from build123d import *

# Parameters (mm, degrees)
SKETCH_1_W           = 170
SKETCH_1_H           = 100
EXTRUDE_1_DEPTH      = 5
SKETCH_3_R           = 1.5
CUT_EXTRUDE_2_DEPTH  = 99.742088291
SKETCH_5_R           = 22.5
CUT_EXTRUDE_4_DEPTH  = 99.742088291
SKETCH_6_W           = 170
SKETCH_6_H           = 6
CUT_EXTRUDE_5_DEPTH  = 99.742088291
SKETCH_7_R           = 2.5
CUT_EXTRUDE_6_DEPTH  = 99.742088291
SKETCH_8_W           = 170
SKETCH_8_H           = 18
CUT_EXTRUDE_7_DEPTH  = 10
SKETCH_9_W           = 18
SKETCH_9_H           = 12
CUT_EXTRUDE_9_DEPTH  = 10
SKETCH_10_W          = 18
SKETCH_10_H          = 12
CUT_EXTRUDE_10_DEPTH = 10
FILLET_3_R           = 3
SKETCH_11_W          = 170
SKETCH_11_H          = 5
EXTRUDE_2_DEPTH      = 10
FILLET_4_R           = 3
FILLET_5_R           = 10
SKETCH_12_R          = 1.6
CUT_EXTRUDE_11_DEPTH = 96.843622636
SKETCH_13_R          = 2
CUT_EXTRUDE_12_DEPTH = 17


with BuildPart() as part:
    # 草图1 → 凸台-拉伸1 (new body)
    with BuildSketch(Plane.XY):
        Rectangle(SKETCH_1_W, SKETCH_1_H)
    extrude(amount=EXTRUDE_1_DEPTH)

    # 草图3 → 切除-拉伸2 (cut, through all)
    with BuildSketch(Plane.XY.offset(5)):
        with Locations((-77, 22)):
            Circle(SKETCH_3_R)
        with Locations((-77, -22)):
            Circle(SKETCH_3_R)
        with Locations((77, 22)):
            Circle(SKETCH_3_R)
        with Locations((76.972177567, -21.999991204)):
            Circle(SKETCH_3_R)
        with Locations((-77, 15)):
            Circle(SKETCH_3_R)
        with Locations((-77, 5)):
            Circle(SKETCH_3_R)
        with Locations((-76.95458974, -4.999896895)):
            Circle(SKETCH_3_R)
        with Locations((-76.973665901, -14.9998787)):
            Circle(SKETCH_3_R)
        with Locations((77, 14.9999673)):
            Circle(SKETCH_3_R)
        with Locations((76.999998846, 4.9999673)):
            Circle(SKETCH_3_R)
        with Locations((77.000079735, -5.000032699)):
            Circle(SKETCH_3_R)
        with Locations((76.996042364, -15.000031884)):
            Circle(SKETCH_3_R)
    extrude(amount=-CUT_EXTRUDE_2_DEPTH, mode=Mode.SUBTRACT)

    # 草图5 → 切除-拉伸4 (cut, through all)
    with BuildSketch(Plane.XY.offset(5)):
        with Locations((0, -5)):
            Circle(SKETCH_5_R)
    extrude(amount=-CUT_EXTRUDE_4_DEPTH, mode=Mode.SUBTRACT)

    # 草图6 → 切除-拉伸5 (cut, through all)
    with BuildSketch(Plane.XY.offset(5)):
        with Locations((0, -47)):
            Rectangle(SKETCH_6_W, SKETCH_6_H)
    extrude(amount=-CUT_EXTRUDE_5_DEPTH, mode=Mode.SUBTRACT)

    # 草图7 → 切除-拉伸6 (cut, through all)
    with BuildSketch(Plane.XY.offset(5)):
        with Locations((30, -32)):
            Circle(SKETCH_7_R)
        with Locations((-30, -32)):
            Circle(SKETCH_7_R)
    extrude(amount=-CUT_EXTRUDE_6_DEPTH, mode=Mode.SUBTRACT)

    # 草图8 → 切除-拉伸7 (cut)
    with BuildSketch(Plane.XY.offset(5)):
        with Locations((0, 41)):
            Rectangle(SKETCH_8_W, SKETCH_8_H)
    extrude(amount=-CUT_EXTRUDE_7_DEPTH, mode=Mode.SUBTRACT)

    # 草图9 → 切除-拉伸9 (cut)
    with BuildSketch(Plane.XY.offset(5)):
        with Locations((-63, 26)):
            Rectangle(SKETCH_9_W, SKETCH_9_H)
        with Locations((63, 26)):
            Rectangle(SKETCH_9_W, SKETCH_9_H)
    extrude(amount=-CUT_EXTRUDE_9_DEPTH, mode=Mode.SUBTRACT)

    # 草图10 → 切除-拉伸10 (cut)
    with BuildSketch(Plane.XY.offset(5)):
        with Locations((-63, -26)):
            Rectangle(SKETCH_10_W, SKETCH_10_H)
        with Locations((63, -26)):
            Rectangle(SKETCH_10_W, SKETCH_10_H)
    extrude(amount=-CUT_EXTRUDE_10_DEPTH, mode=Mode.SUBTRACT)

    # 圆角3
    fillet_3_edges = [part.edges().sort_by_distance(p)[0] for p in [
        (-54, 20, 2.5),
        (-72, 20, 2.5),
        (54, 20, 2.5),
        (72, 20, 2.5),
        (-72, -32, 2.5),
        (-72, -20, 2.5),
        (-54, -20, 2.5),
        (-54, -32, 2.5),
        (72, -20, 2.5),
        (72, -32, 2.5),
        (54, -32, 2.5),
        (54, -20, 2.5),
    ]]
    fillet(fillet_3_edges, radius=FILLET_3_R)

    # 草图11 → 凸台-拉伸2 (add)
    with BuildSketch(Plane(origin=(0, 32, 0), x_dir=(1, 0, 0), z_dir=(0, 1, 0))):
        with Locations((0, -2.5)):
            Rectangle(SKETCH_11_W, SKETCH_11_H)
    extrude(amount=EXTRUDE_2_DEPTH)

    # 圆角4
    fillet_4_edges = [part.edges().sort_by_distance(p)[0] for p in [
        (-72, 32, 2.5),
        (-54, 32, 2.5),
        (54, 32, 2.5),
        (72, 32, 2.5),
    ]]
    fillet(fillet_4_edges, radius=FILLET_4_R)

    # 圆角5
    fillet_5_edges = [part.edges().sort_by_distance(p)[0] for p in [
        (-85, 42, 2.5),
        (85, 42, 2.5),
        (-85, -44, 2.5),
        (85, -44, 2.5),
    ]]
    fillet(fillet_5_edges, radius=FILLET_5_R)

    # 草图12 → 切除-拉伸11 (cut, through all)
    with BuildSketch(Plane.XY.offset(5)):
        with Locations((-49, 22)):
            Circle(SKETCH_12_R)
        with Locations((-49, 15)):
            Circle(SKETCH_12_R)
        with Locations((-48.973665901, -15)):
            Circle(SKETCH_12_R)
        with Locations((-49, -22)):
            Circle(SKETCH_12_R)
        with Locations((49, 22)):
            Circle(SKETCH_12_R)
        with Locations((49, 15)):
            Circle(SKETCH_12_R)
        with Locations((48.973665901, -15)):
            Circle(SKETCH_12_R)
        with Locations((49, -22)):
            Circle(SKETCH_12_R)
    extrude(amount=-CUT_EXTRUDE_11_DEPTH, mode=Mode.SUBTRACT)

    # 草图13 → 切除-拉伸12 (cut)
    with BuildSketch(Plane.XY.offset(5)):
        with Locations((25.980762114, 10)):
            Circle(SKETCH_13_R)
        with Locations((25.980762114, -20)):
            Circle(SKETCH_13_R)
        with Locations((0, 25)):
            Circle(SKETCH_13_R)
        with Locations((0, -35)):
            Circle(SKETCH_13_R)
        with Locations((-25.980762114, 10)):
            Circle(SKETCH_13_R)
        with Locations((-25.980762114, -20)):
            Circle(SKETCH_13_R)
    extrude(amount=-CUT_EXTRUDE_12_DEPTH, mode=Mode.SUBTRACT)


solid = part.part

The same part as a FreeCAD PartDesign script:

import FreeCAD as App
import Part
import Sketcher

V = App.Vector


def edges_at(feature, points):
    """Names of the edges that pass closest to the given points."""
    edges = feature.Shape.Edges
    near = lambda p: min(range(len(edges)), key=lambda i: edges[i].distToShape(Part.Vertex(*p))[0])
    return sorted({f"Edge{near(p) + 1}" for p in points})

doc = App.newDocument("Part")
body = doc.addObject("PartDesign::Body", "Body")

# Sketch on XY plane
sketch1 = doc.addObject("Sketcher::SketchObject", "Sketch")
body.addObject(sketch1)
sketch1.AttachmentSupport = (doc.XY_Plane, [""])
sketch1.MapMode = "FlatFace"
sketch1.addGeometry([
    Part.LineSegment(V(-85, 50, 0), V(-85, -50, 0)),
    Part.LineSegment(V(-85, -50, 0), V(85, -50, 0)),
    Part.LineSegment(V(85, -50, 0), V(85, 50, 0)),
    Part.LineSegment(V(85, 50, 0), V(-85, 50, 0)),
], False)
sketch1.addConstraint([
    Sketcher.Constraint("Coincident", 0, 2, 1, 1),
    Sketcher.Constraint("Coincident", 1, 2, 2, 1),
    Sketcher.Constraint("Coincident", 2, 2, 3, 1),
    Sketcher.Constraint("Coincident", 3, 2, 0, 1),
    Sketcher.Constraint("Vertical", 0),
    Sketcher.Constraint("Horizontal", 1),
    Sketcher.Constraint("Vertical", 2),
    Sketcher.Constraint("Horizontal", 3),
    Sketcher.Constraint("Symmetric", 0, 2, 2, 2, -1, 1),
    Sketcher.Constraint("DistanceX", 1, 1, 1, 2, 170.0),
    Sketcher.Constraint("DistanceY", 0, 2, 0, 1, 100.0),
])
pad1 = doc.addObject("PartDesign::Pad", "Pad")
body.addObject(pad1)
pad1.Profile = sketch1
pad1.Length = 5

# Sketch on XY plane
sketch2 = doc.addObject("Sketcher::SketchObject", "Sketch001")
body.addObject(sketch2)
sketch2.AttachmentSupport = (doc.XY_Plane, [""])
sketch2.MapMode = "FlatFace"
sketch2.AttachmentOffset = App.Placement(V(0, 0, 5), App.Rotation())
sketch2.addGeometry([
    Part.Circle(V(-77, 22, 0), V(0, 0, 1), 1.5),  # 0
    Part.Circle(V(-77, -22, 0), V(0, 0, 1), 1.5),  # 1
    Part.Circle(V(77, 22, 0), V(0, 0, 1), 1.5),  # 2
    Part.Circle(V(77, -22, 0), V(0, 0, 1), 1.5),  # 3
    Part.Circle(V(-77, 15, 0), V(0, 0, 1), 1.5),  # 4
    Part.Circle(V(-77, 5, 0), V(0, 0, 1), 1.5),  # 5
    Part.Circle(V(-77, -5, 0), V(0, 0, 1), 1.5),  # 6
    Part.Circle(V(-77, -15, 0), V(0, 0, 1), 1.5),  # 7
    Part.Circle(V(77, 15, 0), V(0, 0, 1), 1.5),  # 8
    Part.Circle(V(77, 5, 0), V(0, 0, 1), 1.5),  # 9
    Part.Circle(V(77, -5, 0), V(0, 0, 1), 1.5),  # 10
    Part.Circle(V(77, -15, 0), V(0, 0, 1), 1.5),  # 11
], False)
sketch2.addConstraint([
    Sketcher.Constraint("Equal", 0, 1),
    Sketcher.Constraint("Equal", 1, 2),
    Sketcher.Constraint("Equal", 2, 3),
    Sketcher.Constraint("Equal", 3, 4),
    Sketcher.Constraint("Equal", 4, 5),
    Sketcher.Constraint("Equal", 5, 6),
    Sketcher.Constraint("Equal", 6, 7),
    Sketcher.Constraint("Equal", 7, 8),
    Sketcher.Constraint("Equal", 8, 9),
    Sketcher.Constraint("Equal", 9, 10),
    Sketcher.Constraint("Equal", 10, 11),
    Sketcher.Constraint("Symmetric", 1, 3, 2, 3, -1, 1),
    Sketcher.Constraint("Symmetric", 0, 3, 2, 3, -2),
    Sketcher.Constraint("Vertical", 1, 3, 4, 3),
    Sketcher.Constraint("Vertical", 4, 3, 5, 3),
    Sketcher.Constraint("Vertical", 2, 3, 8, 3),
    Sketcher.Constraint("Vertical", 8, 3, 9, 3),
    Sketcher.Constraint("Diameter", 0, 3.0),
    Sketcher.Constraint("DistanceX", 0, 3, -1, 1, 77.0),
    Sketcher.Constraint("DistanceY", -1, 1, 0, 3, 22.0),
    Sketcher.Constraint("DistanceY", -1, 1, 4, 3, 15.0),
    Sketcher.Constraint("DistanceY", -1, 1, 5, 3, 5.0),
    Sketcher.Constraint("DistanceY", 9, 3, 8, 3, 10.0),
    Sketcher.Constraint("DistanceY", 10, 3, 9, 3, 10.0),
    Sketcher.Constraint("DistanceY", 11, 3, 10, 3, 9.999999),
    Sketcher.Constraint("DistanceY", 3, 3, -1, 1, 21.999991),
    Sketcher.Constraint("DistanceX", 6, 3, -1, 1, 76.95459),
    Sketcher.Constraint("DistanceY", 7, 3, -1, 1, 14.999879),
    Sketcher.Constraint("DistanceX", -1, 1, 10, 3, 77.00008),
    Sketcher.Constraint("DistanceY", 11, 3, -1, 1, 15.000032),
    Sketcher.Constraint("DistanceY", 7, 3, 6, 3, 9.999982),
    Sketcher.Constraint("DistanceX", 3, 3, 9, 3, 0.027821),
    Sketcher.Constraint("DistanceX", 7, 3, -1, 1, 76.973666),
    Sketcher.Constraint("DistanceX", -1, 1, 11, 3, 76.996042),
])
pocket1 = doc.addObject("PartDesign::Pocket", "Pocket")
body.addObject(pocket1)
pocket1.Profile = sketch2
pocket1.Type = "ThroughAll"

# Sketch on XY plane
sketch3 = doc.addObject("Sketcher::SketchObject", "Sketch002")
body.addObject(sketch3)
sketch3.AttachmentSupport = (doc.XY_Plane, [""])
sketch3.MapMode = "FlatFace"
sketch3.AttachmentOffset = App.Placement(V(0, 0, 5), App.Rotation())
sketch3.addGeometry(Part.Circle(V(0, -5, 0), V(0, 0, 1), 22), False)
sketch3.addConstraint([
    Sketcher.Constraint("PointOnObject", 0, 3, -2),
    Sketcher.Constraint("Diameter", 0, 45.0),
    Sketcher.Constraint("DistanceY", 0, 3, -1, 1, 5.0),
])
pocket2 = doc.addObject("PartDesign::Pocket", "Pocket001")
body.addObject(pocket2)
pocket2.Profile = sketch3
pocket2.Type = "ThroughAll"

# Sketch on XY plane
sketch4 = doc.addObject("Sketcher::SketchObject", "Sketch003")
body.addObject(sketch4)
sketch4.AttachmentSupport = (doc.XY_Plane, [""])
sketch4.MapMode = "FlatFace"
sketch4.AttachmentOffset = App.Placement(V(0, 0, 5), App.Rotation())
sketch4.addGeometry([
    Part.LineSegment(V(-85, -44, 0), V(-85, -50, 0)),
    Part.LineSegment(V(-85, -50, 0), V(85, -50, 0)),
    Part.LineSegment(V(85, -50, 0), V(85, -44, 0)),
    Part.LineSegment(V(85, -44, 0), V(-85, -44, 0)),
], False)
sketch4.addConstraint([
    Sketcher.Constraint("Coincident", 0, 2, 1, 1),
    Sketcher.Constraint("Coincident", 1, 2, 2, 1),
    Sketcher.Constraint("Coincident", 2, 2, 3, 1),
    Sketcher.Constraint("Coincident", 3, 2, 0, 1),
    Sketcher.Constraint("Vertical", 0),
    Sketcher.Constraint("Horizontal", 1),
    Sketcher.Constraint("Vertical", 2),
    Sketcher.Constraint("Horizontal", 3),
    Sketcher.Constraint("DistanceX", 1, 1, 1, 2, 170.0),
    Sketcher.Constraint("DistanceY", 0, 2, 0, 1, 6.0),
    Sketcher.Constraint("DistanceX", 0, 2, -1, 1, 85.0),
    Sketcher.Constraint("DistanceY", 0, 2, -1, 1, 50.0),
])
pocket3 = doc.addObject("PartDesign::Pocket", "Pocket002")
body.addObject(pocket3)
pocket3.Profile = sketch4
pocket3.Type = "ThroughAll"

# Sketch on XY plane
sketch5 = doc.addObject("Sketcher::SketchObject", "Sketch004")
body.addObject(sketch5)
sketch5.AttachmentSupport = (doc.XY_Plane, [""])
sketch5.MapMode = "FlatFace"
sketch5.AttachmentOffset = App.Placement(V(0, 0, 5), App.Rotation())
sketch5.addGeometry([
    Part.Circle(V(30, -32, 0), V(0, 0, 1), 2.5),
    Part.Circle(V(-30, -32, 0), V(0, 0, 1), 2.5),
], False)
sketch5.addConstraint([
    Sketcher.Constraint("Equal", 0, 1),
    Sketcher.Constraint("Symmetric", 0, 3, 1, 3, -2),
    Sketcher.Constraint("Diameter", 0, 5.0),
    Sketcher.Constraint("DistanceX", -1, 1, 0, 3, 30.0),
    Sketcher.Constraint("DistanceY", 0, 3, -1, 1, 32.0),
])
pocket4 = doc.addObject("PartDesign::Pocket", "Pocket003")
body.addObject(pocket4)
pocket4.Profile = sketch5
pocket4.Type = "ThroughAll"

# Sketch on XY plane
sketch6 = doc.addObject("Sketcher::SketchObject", "Sketch005")
body.addObject(sketch6)
sketch6.AttachmentSupport = (doc.XY_Plane, [""])
sketch6.MapMode = "FlatFace"
sketch6.AttachmentOffset = App.Placement(V(0, 0, 5), App.Rotation())
sketch6.addGeometry([
    Part.LineSegment(V(-85, 50, 0), V(-85, 32, 0)),
    Part.LineSegment(V(-85, 32, 0), V(85, 32, 0)),
    Part.LineSegment(V(85, 32, 0), V(85, 50, 0)),
    Part.LineSegment(V(85, 50, 0), V(-85, 50, 0)),
], False)
sketch6.addConstraint([
    Sketcher.Constraint("Coincident", 0, 2, 1, 1),
    Sketcher.Constraint("Coincident", 1, 2, 2, 1),
    Sketcher.Constraint("Coincident", 2, 2, 3, 1),
    Sketcher.Constraint("Coincident", 3, 2, 0, 1),
    Sketcher.Constraint("Vertical", 0),
    Sketcher.Constraint("Horizontal", 1),
    Sketcher.Constraint("Vertical", 2),
    Sketcher.Constraint("Horizontal", 3),
    Sketcher.Constraint("DistanceX", 1, 1, 1, 2, 170.0),
    Sketcher.Constraint("DistanceY", 0, 2, 0, 1, 18.0),
    Sketcher.Constraint("DistanceX", 0, 2, -1, 1, 85.0),
    Sketcher.Constraint("DistanceY", -1, 1, 0, 2, 32.0),
])
pocket5 = doc.addObject("PartDesign::Pocket", "Pocket004")
body.addObject(pocket5)
pocket5.Profile = sketch6
pocket5.Length = 10

# Sketch on XY plane
sketch7 = doc.addObject("Sketcher::SketchObject", "Sketch006")
body.addObject(sketch7)
sketch7.AttachmentSupport = (doc.XY_Plane, [""])
sketch7.MapMode = "FlatFace"
sketch7.AttachmentOffset = App.Placement(V(0, 0, 5), App.Rotation())
sketch7.addGeometry([
    Part.LineSegment(V(-72, 32, 0), V(-72, 20, 0)),  # 0
    Part.LineSegment(V(-72, 20, 0), V(-54, 20, 0)),  # 1
    Part.LineSegment(V(-54, 20, 0), V(-54, 32, 0)),  # 2
    Part.LineSegment(V(-54, 32, 0), V(-72, 32, 0)),  # 3
    Part.LineSegment(V(54, 32, 0), V(54, 20, 0)),  # 4
    Part.LineSegment(V(54, 20, 0), V(72, 20, 0)),  # 5
    Part.LineSegment(V(72, 20, 0), V(72, 32, 0)),  # 6
    Part.LineSegment(V(72, 32, 0), V(54, 32, 0)),  # 7
], False)
sketch7.addConstraint([
    Sketcher.Constraint("Coincident", 0, 2, 1, 1),
    Sketcher.Constraint("Coincident", 1, 2, 2, 1),
    Sketcher.Constraint("Coincident", 2, 2, 3, 1),
    Sketcher.Constraint("Coincident", 3, 2, 0, 1),
    Sketcher.Constraint("Coincident", 4, 2, 5, 1),
    Sketcher.Constraint("Coincident", 5, 2, 6, 1),
    Sketcher.Constraint("Coincident", 6, 2, 7, 1),
    Sketcher.Constraint("Coincident", 7, 2, 4, 1),
    Sketcher.Constraint("Vertical", 0),
    Sketcher.Constraint("Horizontal", 1),
    Sketcher.Constraint("Vertical", 2),
    Sketcher.Constraint("Horizontal", 3),
    Sketcher.Constraint("Vertical", 4),
    Sketcher.Constraint("Horizontal", 5),
    Sketcher.Constraint("Vertical", 6),
    Sketcher.Constraint("Horizontal", 7),
    Sketcher.Constraint("Symmetric", 1, 2, 4, 2, -2),
    Sketcher.Constraint("Symmetric", 3, 2, 6, 2, -2),
    Sketcher.Constraint("DistanceX", 1, 1, 1, 2, 18.0),
    Sketcher.Constraint("DistanceY", 0, 2, 0, 1, 12.0),
    Sketcher.Constraint("DistanceX", 0, 2, -1, 1, 72.0),
    Sketcher.Constraint("DistanceY", -1, 1, 0, 2, 20.0),
])
pocket6 = doc.addObject("PartDesign::Pocket", "Pocket005")
body.addObject(pocket6)
pocket6.Profile = sketch7
pocket6.Length = 10

# Sketch on XY plane
sketch8 = doc.addObject("Sketcher::SketchObject", "Sketch007")
body.addObject(sketch8)
sketch8.AttachmentSupport = (doc.XY_Plane, [""])
sketch8.MapMode = "FlatFace"
sketch8.AttachmentOffset = App.Placement(V(0, 0, 5), App.Rotation())
sketch8.addGeometry([
    Part.LineSegment(V(-72, -20, 0), V(-72, -32, 0)),  # 0
    Part.LineSegment(V(-72, -32, 0), V(-54, -32, 0)),  # 1
    Part.LineSegment(V(-54, -32, 0), V(-54, -20, 0)),  # 2
    Part.LineSegment(V(-54, -20, 0), V(-72, -20, 0)),  # 3
    Part.LineSegment(V(54, -20, 0), V(54, -32, 0)),  # 4
    Part.LineSegment(V(54, -32, 0), V(72, -32, 0)),  # 5
    Part.LineSegment(V(72, -32, 0), V(72, -20, 0)),  # 6
    Part.LineSegment(V(72, -20, 0), V(54, -20, 0)),  # 7
], False)
sketch8.addConstraint([
    Sketcher.Constraint("Coincident", 0, 2, 1, 1),
    Sketcher.Constraint("Coincident", 1, 2, 2, 1),
    Sketcher.Constraint("Coincident", 2, 2, 3, 1),
    Sketcher.Constraint("Coincident", 3, 2, 0, 1),
    Sketcher.Constraint("Coincident", 4, 2, 5, 1),
    Sketcher.Constraint("Coincident", 5, 2, 6, 1),
    Sketcher.Constraint("Coincident", 6, 2, 7, 1),
    Sketcher.Constraint("Coincident", 7, 2, 4, 1),
    Sketcher.Constraint("Vertical", 0),
    Sketcher.Constraint("Horizontal", 1),
    Sketcher.Constraint("Vertical", 2),
    Sketcher.Constraint("Horizontal", 3),
    Sketcher.Constraint("Vertical", 4),
    Sketcher.Constraint("Horizontal", 5),
    Sketcher.Constraint("Vertical", 6),
    Sketcher.Constraint("Horizontal", 7),
    Sketcher.Constraint("Symmetric", 1, 2, 4, 2, -2),
    Sketcher.Constraint("Symmetric", 3, 2, 6, 2, -2),
    Sketcher.Constraint("DistanceX", 1, 1, 1, 2, 18.0),
    Sketcher.Constraint("DistanceY", 0, 2, 0, 1, 12.0),
    Sketcher.Constraint("DistanceX", 0, 2, -1, 1, 72.0),
    Sketcher.Constraint("DistanceY", 0, 2, -1, 1, 32.0),
])
pocket7 = doc.addObject("PartDesign::Pocket", "Pocket006")
body.addObject(pocket7)
pocket7.Profile = sketch8
pocket7.Length = 10
doc.recompute()

fillet = doc.addObject("PartDesign::Fillet", "Fillet")
body.addObject(fillet)
fillet.Base = (pocket7, edges_at(pocket7, [
    (-54, 20, 2.5),
    (-72, 20, 2.5),
    (54, 20, 2.5),
    (72, 20, 2.5),
    (-72, -32, 2.5),
    (-72, -20, 2.5),
    (-54, -20, 2.5),
    (-54, -32, 2.5),
    (72, -20, 2.5),
    (72, -32, 2.5),
    (54, -32, 2.5),
    (54, -20, 2.5),
]))
fillet.Radius = 3

# Sketch on XZ plane
sketch9 = doc.addObject("Sketcher::SketchObject", "Sketch008")
body.addObject(sketch9)
sketch9.AttachmentSupport = (doc.XZ_Plane, [""])
sketch9.MapMode = "FlatFace"
sketch9.AttachmentOffset = App.Placement(V(0, 0, -32), App.Rotation())
sketch9.addGeometry([
    Part.LineSegment(V(-85, 0, 0), V(-85, 5, 0)),
    Part.LineSegment(V(-85, 5, 0), V(85, 5, 0)),
    Part.LineSegment(V(85, 5, 0), V(85, 0, 0)),
    Part.LineSegment(V(85, 0, 0), V(-85, 0, 0)),
], False)
sketch9.addConstraint([
    Sketcher.Constraint("Coincident", 0, 2, 1, 1),
    Sketcher.Constraint("Coincident", 1, 2, 2, 1),
    Sketcher.Constraint("Coincident", 2, 2, 3, 1),
    Sketcher.Constraint("Coincident", 3, 2, 0, 1),
    Sketcher.Constraint("Vertical", 0),
    Sketcher.Constraint("Horizontal", 1),
    Sketcher.Constraint("Vertical", 2),
    Sketcher.Constraint("Horizontal", 3),
    Sketcher.Constraint("Symmetric", 2, 2, 3, 2, -1, 1),
    Sketcher.Constraint("DistanceX", 1, 1, 1, 2, 170.0),
    Sketcher.Constraint("DistanceY", 0, 1, 0, 2, 5.0),
])
pad2 = doc.addObject("PartDesign::Pad", "Pad001")
body.addObject(pad2)
pad2.Profile = sketch9
pad2.Length = 10
pad2.Reversed = True
doc.recompute()

fillet2 = doc.addObject("PartDesign::Fillet", "Fillet001")
body.addObject(fillet2)
fillet2.Base = (pad2, edges_at(pad2, [
    (-72, 32, 2.5),
    (-54, 32, 2.5),
    (54, 32, 2.5),
    (72, 32, 2.5),
]))
fillet2.Radius = 3
doc.recompute()

fillet3 = doc.addObject("PartDesign::Fillet", "Fillet002")
body.addObject(fillet3)
fillet3.Base = (fillet2, edges_at(fillet2, [
    (-85, 42, 2.5),
    (85, 42, 2.5),
    (-85, -44, 2.5),
    (85, -44, 2.5),
]))
fillet3.Radius = 10

# Sketch on XY plane
sketch10 = doc.addObject("Sketcher::SketchObject", "Sketch009")
body.addObject(sketch10)
sketch10.AttachmentSupport = (doc.XY_Plane, [""])
sketch10.MapMode = "FlatFace"
sketch10.AttachmentOffset = App.Placement(V(0, 0, 5), App.Rotation())
sketch10.addGeometry([
    Part.Circle(V(-49, 22, 0), V(0, 0, 1), 1.6),  # 0
    Part.Circle(V(-49, 15, 0), V(0, 0, 1), 1.6),  # 1
    Part.Circle(V(-49, -15, 0), V(0, 0, 1), 1.6),  # 2
    Part.Circle(V(-49, -22, 0), V(0, 0, 1), 1.6),  # 3
    Part.Circle(V(49, 22, 0), V(0, 0, 1), 1.6),  # 4
    Part.Circle(V(49, 15, 0), V(0, 0, 1), 1.6),  # 5
    Part.Circle(V(49, -15, 0), V(0, 0, 1), 1.6),  # 6
    Part.Circle(V(49, -22, 0), V(0, 0, 1), 1.6),  # 7
], False)
sketch10.addConstraint([
    Sketcher.Constraint("Equal", 0, 1),
    Sketcher.Constraint("Equal", 1, 2),
    Sketcher.Constraint("Equal", 2, 3),
    Sketcher.Constraint("Equal", 3, 4),
    Sketcher.Constraint("Equal", 4, 5),
    Sketcher.Constraint("Equal", 5, 6),
    Sketcher.Constraint("Equal", 6, 7),
    Sketcher.Constraint("Symmetric", 3, 3, 4, 3, -1, 1),
    Sketcher.Constraint("Symmetric", 0, 3, 7, 3, -1, 1),
    Sketcher.Constraint("Symmetric", 0, 3, 4, 3, -2),
    Sketcher.Constraint("Symmetric", 1, 3, 5, 3, -2),
    Sketcher.Constraint("Symmetric", 2, 3, 6, 3, -2),
    Sketcher.Constraint("Vertical", 0, 3, 1, 3),
    Sketcher.Constraint("Diameter", 0, 3.2),
    Sketcher.Constraint("DistanceX", 0, 3, -1, 1, 49.0),
    Sketcher.Constraint("DistanceY", -1, 1, 0, 3, 22.0),
    Sketcher.Constraint("DistanceY", -1, 1, 1, 3, 15.0),
    Sketcher.Constraint("DistanceY", 2, 3, -1, 1, 15.0),
    Sketcher.Constraint("DistanceX", 2, 3, 6, 3, 97.947332),
])
pocket8 = doc.addObject("PartDesign::Pocket", "Pocket007")
body.addObject(pocket8)
pocket8.Profile = sketch10
pocket8.Type = "ThroughAll"

# Sketch on XY plane
sketch11 = doc.addObject("Sketcher::SketchObject", "Sketch010")
body.addObject(sketch11)
sketch11.AttachmentSupport = (doc.XY_Plane, [""])
sketch11.MapMode = "FlatFace"
sketch11.AttachmentOffset = App.Placement(V(0, 0, 5), App.Rotation())
sketch11.addGeometry([
    Part.Circle(V(26, 10, 0), V(0, 0, 1), 2),  # 0
    Part.Circle(V(26, -20, 0), V(0, 0, 1), 2),  # 1
    Part.Circle(V(0, 25, 0), V(0, 0, 1), 2),  # 2
    Part.Circle(V(0, -35, 0), V(0, 0, 1), 2),  # 3
    Part.Circle(V(-26, 10, 0), V(0, 0, 1), 2),  # 4
    Part.Circle(V(-26, -20, 0), V(0, 0, 1), 2),  # 5
], False)
sketch11.addConstraint([
    Sketcher.Constraint("Equal", 0, 1),
    Sketcher.Constraint("Equal", 1, 2),
    Sketcher.Constraint("Equal", 2, 3),
    Sketcher.Constraint("Equal", 3, 4),
    Sketcher.Constraint("Equal", 4, 5),
    Sketcher.Constraint("Symmetric", 0, 3, 4, 3, -2),
    Sketcher.Constraint("Symmetric", 1, 3, 5, 3, -2),
    Sketcher.Constraint("PointOnObject", 2, 3, -2),
    Sketcher.Constraint("PointOnObject", 3, 3, -2),
    Sketcher.Constraint("Vertical", 0, 3, 1, 3),
    Sketcher.Constraint("Diameter", 0, 4.0),
    Sketcher.Constraint("DistanceY", -1, 1, 0, 3, 10.0),
    Sketcher.Constraint("DistanceY", 1, 3, -1, 1, 20.0),
    Sketcher.Constraint("DistanceY", -1, 1, 2, 3, 25.0),
    Sketcher.Constraint("DistanceY", 3, 3, -1, 1, 35.0),
    Sketcher.Constraint("DistanceX", -1, 1, 0, 3, 25.980762),
])
pocket9 = doc.addObject("PartDesign::Pocket", "Pocket008")
body.addObject(pocket9)
pocket9.Profile = sketch11
pocket9.Length = 17

doc.recompute()
